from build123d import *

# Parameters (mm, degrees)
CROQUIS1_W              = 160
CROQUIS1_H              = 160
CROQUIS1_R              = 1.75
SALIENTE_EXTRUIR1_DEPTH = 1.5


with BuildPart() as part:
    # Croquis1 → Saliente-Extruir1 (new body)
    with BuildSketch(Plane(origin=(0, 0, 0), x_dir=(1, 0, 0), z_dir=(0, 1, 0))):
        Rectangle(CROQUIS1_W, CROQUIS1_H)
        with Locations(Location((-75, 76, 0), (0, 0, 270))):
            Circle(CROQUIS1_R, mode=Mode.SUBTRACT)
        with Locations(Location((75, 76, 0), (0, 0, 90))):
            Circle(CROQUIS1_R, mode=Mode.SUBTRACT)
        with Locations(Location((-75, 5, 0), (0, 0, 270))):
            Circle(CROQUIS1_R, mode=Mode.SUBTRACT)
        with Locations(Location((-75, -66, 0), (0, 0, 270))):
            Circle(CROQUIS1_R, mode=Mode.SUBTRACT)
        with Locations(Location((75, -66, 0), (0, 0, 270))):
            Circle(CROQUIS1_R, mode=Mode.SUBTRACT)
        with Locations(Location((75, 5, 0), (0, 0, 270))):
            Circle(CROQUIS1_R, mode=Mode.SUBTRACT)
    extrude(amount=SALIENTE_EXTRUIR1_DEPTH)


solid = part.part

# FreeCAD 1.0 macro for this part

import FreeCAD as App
import Part
import Sketcher

V = App.Vector
Q = App.Units.Quantity


def add_polygon(sketch, points):
    """Adds a closed chain of lines whose ends are joined by coincident constraints."""
    first, n = sketch.GeometryCount, len(points)
    for a, b in zip(points, points[1:] + points[:1]):
        sketch.addGeometry(Part.LineSegment(App.Vector(*a, 0), App.Vector(*b, 0)), False)
    for i in range(n):
        sketch.addConstraint(Sketcher.Constraint("Coincident", first + i, 2, first + (i + 1) % n, 1))

doc = App.newDocument("Part")
body = doc.addObject("PartDesign::Body", "Body")

# Sketch on XZ plane
sketch1 = body.newObject("Sketcher::SketchObject", "Sketch")
sketch1.AttachmentSupport = (doc.getObject("XZ_Plane"), [""])
sketch1.MapMode = "FlatFace"
add_polygon(sketch1, [(-80, -80), (-80, 80), (80, 80), (80, -80)])  # lines 0-3
sketch1.addGeometry(Part.Circle(V(-75, 66, 0), V(0, 0, 1), 1.8), False)  # 4
sketch1.addGeometry(Part.Circle(V(75, 66, 0), V(0, 0, 1), 1.8), False)  # 5
sketch1.addGeometry(Part.Circle(V(-75, -5, 0), V(0, 0, 1), 1.8), False)  # 6
sketch1.addGeometry(Part.Circle(V(-75, -76, 0), V(0, 0, 1), 1.8), False)  # 7
sketch1.addGeometry(Part.Circle(V(75, -5, 0), V(0, 0, 1), 1.8), False)  # 8
sketch1.addGeometry(Part.Circle(V(75, -76, 0), V(0, 0, 1), 1.8), False)  # 9
sketch1.addConstraint([
    Sketcher.Constraint("Vertical", 0),
    Sketcher.Constraint("Horizontal", 1),
    Sketcher.Constraint("Vertical", 2),
    Sketcher.Constraint("Horizontal", 3),
    Sketcher.Constraint("Equal", 4, 5),
    Sketcher.Constraint("Equal", 5, 6),
    Sketcher.Constraint("Equal", 6, 7),
    Sketcher.Constraint("Equal", 7, 8),
    Sketcher.Constraint("Equal", 8, 9),
    Sketcher.Constraint("Symmetric", 0, 2, 2, 2, -1, 1),
    Sketcher.Constraint("Symmetric", 4, 3, 5, 3, -2),
    Sketcher.Constraint("Symmetric", 6, 3, 8, 3, -2),
    Sketcher.Constraint("Symmetric", 7, 3, 9, 3, -2),
    Sketcher.Constraint("Vertical", 4, 3, 6, 3),
    Sketcher.Constraint("Vertical", 6, 3, 7, 3),
    Sketcher.Constraint("Equal", 3, 0),
    Sketcher.Constraint("Diameter", 4, Q("3.5 mm")),
    Sketcher.Constraint("DistanceX", 1, 1, 1, 2, Q("160 mm")),
    Sketcher.Constraint("DistanceX", 4, 3, -1, 1, Q("75 mm")),
    Sketcher.Constraint("DistanceY", -1, 1, 4, 3, Q("66 mm")),
    Sketcher.Constraint("DistanceY", 6, 3, -1, 1, Q("5 mm")),
    Sketcher.Constraint("DistanceY", 7, 3, -1, 1, Q("76 mm")),
])
pad1 = body.newObject("PartDesign::Pad", "Pad")
pad1.Profile = sketch1
pad1.Length = 1.5
pad1.Reversed = True

doc.recompute()
